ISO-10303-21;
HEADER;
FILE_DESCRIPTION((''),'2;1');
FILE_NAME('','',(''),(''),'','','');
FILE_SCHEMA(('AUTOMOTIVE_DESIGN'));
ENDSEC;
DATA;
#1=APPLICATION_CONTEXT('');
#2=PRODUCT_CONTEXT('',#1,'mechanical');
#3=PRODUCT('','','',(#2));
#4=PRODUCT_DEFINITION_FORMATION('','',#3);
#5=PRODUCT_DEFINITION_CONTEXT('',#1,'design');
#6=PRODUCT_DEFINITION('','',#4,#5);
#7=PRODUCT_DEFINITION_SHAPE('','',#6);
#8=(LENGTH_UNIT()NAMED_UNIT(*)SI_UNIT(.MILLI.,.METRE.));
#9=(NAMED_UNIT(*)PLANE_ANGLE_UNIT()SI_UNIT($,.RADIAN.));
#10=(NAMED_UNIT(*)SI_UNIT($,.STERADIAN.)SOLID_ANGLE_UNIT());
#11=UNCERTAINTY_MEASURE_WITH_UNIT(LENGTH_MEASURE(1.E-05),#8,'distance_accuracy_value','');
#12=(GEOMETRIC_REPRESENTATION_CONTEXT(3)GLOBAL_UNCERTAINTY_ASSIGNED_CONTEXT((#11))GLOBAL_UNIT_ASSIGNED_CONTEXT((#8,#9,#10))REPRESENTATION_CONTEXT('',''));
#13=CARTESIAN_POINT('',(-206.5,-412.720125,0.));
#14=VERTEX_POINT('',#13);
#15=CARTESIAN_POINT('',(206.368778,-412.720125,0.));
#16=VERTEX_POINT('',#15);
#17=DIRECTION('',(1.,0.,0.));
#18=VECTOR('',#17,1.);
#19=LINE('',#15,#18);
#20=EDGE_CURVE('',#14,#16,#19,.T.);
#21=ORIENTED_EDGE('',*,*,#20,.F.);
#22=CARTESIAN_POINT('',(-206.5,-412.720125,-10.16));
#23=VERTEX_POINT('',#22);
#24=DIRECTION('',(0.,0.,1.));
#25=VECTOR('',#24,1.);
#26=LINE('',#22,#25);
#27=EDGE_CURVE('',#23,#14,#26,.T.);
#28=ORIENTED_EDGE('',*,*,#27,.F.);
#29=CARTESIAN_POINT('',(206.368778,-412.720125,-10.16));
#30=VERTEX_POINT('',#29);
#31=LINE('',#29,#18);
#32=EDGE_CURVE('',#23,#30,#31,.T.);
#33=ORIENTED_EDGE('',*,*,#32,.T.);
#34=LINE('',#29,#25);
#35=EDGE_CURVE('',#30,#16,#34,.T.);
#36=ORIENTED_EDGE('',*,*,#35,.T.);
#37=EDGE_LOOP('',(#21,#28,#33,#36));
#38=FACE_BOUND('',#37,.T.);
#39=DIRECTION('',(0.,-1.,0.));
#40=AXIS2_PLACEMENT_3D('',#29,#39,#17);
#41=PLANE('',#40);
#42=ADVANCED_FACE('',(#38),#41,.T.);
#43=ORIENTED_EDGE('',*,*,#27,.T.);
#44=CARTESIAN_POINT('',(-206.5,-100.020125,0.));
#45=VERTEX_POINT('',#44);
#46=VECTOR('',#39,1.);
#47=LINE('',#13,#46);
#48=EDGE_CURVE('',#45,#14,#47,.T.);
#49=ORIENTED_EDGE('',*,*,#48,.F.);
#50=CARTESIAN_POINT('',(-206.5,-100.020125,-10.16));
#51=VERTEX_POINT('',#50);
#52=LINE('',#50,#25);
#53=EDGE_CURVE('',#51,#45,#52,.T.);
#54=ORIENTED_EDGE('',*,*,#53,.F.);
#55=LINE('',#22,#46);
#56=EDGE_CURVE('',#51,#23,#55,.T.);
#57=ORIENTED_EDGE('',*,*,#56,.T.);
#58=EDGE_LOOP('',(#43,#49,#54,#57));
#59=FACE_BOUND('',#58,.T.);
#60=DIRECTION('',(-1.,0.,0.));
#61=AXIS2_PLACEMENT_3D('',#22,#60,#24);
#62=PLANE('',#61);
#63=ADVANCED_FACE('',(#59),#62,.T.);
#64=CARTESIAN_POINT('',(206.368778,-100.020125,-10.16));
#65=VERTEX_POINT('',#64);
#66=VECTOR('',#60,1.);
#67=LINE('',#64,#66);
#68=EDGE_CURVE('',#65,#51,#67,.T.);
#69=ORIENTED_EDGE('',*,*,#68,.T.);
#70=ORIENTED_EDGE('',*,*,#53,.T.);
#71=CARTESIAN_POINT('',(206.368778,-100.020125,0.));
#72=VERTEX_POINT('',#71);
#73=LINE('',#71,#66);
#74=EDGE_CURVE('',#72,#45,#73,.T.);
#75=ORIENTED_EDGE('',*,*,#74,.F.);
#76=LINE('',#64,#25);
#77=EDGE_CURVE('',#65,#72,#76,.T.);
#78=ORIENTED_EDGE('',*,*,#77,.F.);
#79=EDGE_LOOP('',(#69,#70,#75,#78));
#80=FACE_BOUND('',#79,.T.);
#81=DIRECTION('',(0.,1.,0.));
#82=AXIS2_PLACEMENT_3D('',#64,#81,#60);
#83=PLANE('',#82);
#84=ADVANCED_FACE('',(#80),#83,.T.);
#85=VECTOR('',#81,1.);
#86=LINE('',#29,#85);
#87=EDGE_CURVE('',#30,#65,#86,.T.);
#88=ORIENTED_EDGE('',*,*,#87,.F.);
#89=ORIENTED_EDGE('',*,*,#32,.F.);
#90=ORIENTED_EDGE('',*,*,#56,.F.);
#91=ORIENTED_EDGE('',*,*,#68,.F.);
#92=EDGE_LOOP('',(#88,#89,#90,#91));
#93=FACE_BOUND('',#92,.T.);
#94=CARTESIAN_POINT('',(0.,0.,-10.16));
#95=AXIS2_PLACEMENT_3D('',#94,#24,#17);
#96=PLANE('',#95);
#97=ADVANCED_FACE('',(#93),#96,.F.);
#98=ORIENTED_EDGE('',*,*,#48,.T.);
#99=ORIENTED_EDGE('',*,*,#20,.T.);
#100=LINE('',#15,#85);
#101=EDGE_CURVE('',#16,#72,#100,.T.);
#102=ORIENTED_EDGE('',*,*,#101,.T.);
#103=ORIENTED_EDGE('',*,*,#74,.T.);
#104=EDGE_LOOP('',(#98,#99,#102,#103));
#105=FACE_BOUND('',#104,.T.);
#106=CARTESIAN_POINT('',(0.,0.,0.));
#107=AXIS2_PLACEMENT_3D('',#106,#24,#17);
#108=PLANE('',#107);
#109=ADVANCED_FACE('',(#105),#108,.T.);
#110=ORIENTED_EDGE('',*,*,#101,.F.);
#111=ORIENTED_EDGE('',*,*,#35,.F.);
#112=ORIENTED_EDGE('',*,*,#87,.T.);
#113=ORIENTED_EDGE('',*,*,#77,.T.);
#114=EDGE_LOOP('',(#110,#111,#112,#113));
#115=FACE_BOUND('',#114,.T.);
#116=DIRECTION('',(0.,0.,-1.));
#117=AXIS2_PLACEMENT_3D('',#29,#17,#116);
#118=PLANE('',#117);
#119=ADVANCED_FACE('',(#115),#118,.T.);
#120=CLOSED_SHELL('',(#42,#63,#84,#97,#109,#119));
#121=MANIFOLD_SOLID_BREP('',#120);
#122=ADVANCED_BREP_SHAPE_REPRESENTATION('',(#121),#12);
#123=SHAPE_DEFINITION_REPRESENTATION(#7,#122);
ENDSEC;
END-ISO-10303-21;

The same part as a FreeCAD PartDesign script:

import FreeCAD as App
import Part
import Sketcher
Q = App.Units.Quantity


def add_polygon(sketch, points):
    """Adds a closed chain of lines whose ends are joined by coincident constraints."""
    first, n = sketch.GeometryCount, len(points)
    for a, b in zip(points, points[1:] + points[:1]):
        sketch.addGeometry(Part.LineSegment(App.Vector(*a, 0), App.Vector(*b, 0)), False)
    for i in range(n):
        sketch.addConstraint(Sketcher.Constraint("Coincident", first + i, 2, first + (i + 1) % n, 1))

doc = App.newDocument("Part")
params = doc.addObject("Spreadsheet::Sheet", "Params")
for row, (alias, value) in enumerate([
    ("sketch1_height", "312.7 mm"),
    ("pad1_length", "10.16 mm"),
], start=1):
    params.set(f"A{row}", alias)
    params.set(f"B{row}", "=" + value)
    params.setAlias(f"B{row}", alias)

body = doc.addObject("PartDesign::Body", "Body")

sketch1 = doc.addObject("Sketcher::SketchObject", "Sketch")
body.addObject(sketch1)
sketch1.AttachmentSupport = (doc.XY_Plane, [""])
sketch1.MapMode = "FlatFace"
add_polygon(sketch1, [(-206, -100), (-206, -413), (206, -413), (206, -100)])
sketch1.addConstraint(Sketcher.Constraint("Vertical", 0))
sketch1.addConstraint(Sketcher.Constraint("Horizontal", 1))
sketch1.addConstraint(Sketcher.Constraint("Vertical", 2))
sketch1.addConstraint(Sketcher.Constraint("Horizontal", 3))
sketch1.addConstraint(Sketcher.Constraint("DistanceY", 0, 2, 0, 1, Q("312.7 mm")))
sketch1.addConstraint(Sketcher.Constraint("DistanceX", 0, 2, -1, 1, Q("206.5 mm")))
sketch1.addConstraint(Sketcher.Constraint("DistanceX", 1, 1, 1, 2, Q("412.868778 mm")))
sketch1.addConstraint(Sketcher.Constraint("DistanceY", 0, 2, -1, 1, Q("412.720125 mm")))
sketch1.setExpression("Constraints[8]", "Params.sketch1_height")
pad1 = doc.addObject("PartDesign::Pad", "Pad")
body.addObject(pad1)
pad1.Profile = sketch1
pad1.setExpression("Length", "Params.pad1_length")
pad1.Reversed = True

doc.recompute()
